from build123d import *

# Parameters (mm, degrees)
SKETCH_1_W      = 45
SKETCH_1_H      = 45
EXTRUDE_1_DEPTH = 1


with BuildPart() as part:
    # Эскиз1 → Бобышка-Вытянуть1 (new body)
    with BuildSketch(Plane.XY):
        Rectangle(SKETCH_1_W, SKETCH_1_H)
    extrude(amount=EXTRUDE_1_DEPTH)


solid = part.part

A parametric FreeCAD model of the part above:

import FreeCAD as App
import Part
import Sketcher

doc = App.newDocument("Part")
body = doc.addObject("PartDesign::Body", "Body")

# Sketch on XY plane
sketch1 = body.newObject("Sketcher::SketchObject", "Sketch")
sketch1.AttachmentSupport = (doc.getObject("XY_Plane"), [""])
sketch1.MapMode = "FlatFace"
sketch1.addGeometry([
    Part.LineSegment(App.Vector(-22, 22, 0), App.Vector(-22, -22, 0)),
    Part.LineSegment(App.Vector(-22, -22, 0), App.Vector(22, -22, 0)),
    Part.LineSegment(App.Vector(22, -22, 0), App.Vector(22, 22, 0)),
    Part.LineSegment(App.Vector(22, 22, 0), App.Vector(-22, 22, 0)),
], False)
sketch1.addConstraint([
    Sketcher.Constraint("Coincident", 0, 2, 1, 1),
    Sketcher.Constraint("Coincident", 1, 2, 2, 1),
    Sketcher.Constraint("Coincident", 2, 2, 3, 1),
    Sketcher.Constraint("Coincident", 3, 2, 0, 1),
    Sketcher.Constraint("Vertical", 0),
    Sketcher.Constraint("Horizontal", 1),
    Sketcher.Constraint("Vertical", 2),
    Sketcher.Constraint("Horizontal", 3),
    Sketcher.Constraint("Symmetric", 0, 2, 2, 2, -1, 1),
    Sketcher.Constraint("Equal", 3, 0),
    Sketcher.Constraint("DistanceX", 1, 1, 1, 2, 45.0),
])
pad1 = body.newObject("PartDesign::Pad", "Pad")
pad1.Profile = sketch1
pad1.Length = 1

doc.recompute()
